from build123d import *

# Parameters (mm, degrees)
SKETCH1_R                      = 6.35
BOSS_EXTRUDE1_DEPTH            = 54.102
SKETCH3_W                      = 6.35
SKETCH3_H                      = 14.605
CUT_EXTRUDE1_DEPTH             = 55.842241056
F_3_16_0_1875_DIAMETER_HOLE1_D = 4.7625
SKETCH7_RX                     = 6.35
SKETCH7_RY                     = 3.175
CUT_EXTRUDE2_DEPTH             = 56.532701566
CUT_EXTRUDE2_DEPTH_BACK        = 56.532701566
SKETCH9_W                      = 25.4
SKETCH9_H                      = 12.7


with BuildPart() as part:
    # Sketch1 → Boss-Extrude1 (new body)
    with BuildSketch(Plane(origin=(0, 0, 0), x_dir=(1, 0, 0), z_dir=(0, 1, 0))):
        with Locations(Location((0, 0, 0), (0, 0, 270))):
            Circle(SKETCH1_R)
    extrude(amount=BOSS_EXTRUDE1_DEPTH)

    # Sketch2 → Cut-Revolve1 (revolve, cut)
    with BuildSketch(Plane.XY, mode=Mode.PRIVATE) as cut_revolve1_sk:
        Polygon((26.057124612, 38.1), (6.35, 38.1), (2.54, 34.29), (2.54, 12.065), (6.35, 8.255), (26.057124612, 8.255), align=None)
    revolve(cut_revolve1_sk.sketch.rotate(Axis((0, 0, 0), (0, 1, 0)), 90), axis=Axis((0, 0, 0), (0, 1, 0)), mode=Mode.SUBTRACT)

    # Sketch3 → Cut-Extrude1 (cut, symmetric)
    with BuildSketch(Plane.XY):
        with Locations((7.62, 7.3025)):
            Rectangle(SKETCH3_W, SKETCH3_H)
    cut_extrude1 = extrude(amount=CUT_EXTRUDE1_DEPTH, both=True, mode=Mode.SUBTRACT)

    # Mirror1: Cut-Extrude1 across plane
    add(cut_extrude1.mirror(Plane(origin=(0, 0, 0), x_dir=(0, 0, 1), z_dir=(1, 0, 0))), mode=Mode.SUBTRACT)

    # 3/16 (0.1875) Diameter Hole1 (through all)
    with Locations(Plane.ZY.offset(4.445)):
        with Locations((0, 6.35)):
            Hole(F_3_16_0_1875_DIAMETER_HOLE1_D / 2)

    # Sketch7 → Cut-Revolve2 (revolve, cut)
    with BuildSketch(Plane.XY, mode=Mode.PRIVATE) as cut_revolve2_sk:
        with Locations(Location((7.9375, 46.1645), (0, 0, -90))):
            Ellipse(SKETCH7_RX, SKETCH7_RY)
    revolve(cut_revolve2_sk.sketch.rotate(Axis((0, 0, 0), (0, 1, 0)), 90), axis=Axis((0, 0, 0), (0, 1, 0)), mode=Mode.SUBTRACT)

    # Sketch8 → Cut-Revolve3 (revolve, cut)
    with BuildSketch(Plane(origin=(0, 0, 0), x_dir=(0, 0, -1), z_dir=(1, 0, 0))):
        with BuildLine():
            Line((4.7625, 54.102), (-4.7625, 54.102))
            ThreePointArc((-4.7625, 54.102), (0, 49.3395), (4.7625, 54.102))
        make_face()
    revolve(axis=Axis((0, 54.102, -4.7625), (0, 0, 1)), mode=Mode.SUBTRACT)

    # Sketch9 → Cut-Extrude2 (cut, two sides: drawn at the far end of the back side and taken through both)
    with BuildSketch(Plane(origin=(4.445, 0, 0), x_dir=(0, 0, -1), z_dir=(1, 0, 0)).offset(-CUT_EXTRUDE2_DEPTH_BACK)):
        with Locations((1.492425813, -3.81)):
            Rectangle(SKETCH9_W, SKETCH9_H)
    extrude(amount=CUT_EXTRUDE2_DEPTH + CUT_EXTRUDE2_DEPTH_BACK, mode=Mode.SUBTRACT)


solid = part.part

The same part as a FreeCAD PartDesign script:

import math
import FreeCAD as App
import Part
import Sketcher

V = App.Vector
Q = App.Units.Quantity


def add_polygon(sketch, points):
    """Adds a closed chain of lines whose ends are joined by coincident constraints."""
    first, n = sketch.GeometryCount, len(points)
    for a, b in zip(points, points[1:] + points[:1]):
        sketch.addGeometry(Part.LineSegment(App.Vector(*a, 0), App.Vector(*b, 0)), False)
    for i in range(n):
        sketch.addConstraint(Sketcher.Constraint("Coincident", first + i, 2, first + (i + 1) % n, 1))

doc = App.newDocument("Part")
body = doc.addObject("PartDesign::Body", "Body")

sketch1 = body.newObject("Sketcher::SketchObject", "Sketch")
sketch1.AttachmentSupport = (doc.getObject("XZ_Plane"), [""])
sketch1.MapMode = "FlatFace"
sketch1.addGeometry(Part.Circle(V(0, 0, 0), V(0, 0, 1), 6), False)
sketch1.addConstraint(Sketcher.Constraint("Coincident", 0, 3, -1, 1))
sketch1.addConstraint(Sketcher.Constraint("Diameter", 0, Q("0.5 in")))
pad1 = body.newObject("PartDesign::Pad", "Pad")
pad1.Profile = sketch1
pad1.Length = Q("2.13 in")
pad1.Reversed = True

sketch2 = body.newObject("Sketcher::SketchObject", "Sketch001")
sketch2.AttachmentSupport = (doc.getObject("XY_Plane"), [""])
sketch2.MapMode = "FlatFace"
add_polygon(sketch2, [(26, 38), (6, 38), (3, 34), (3, 12), (6, 8), (26, 8)])
sketch2.addConstraint(Sketcher.Constraint("Horizontal", 0))
sketch2.addConstraint(Sketcher.Constraint("Vertical", 2))
sketch2.addConstraint(Sketcher.Constraint("Horizontal", 4))
sketch2.addConstraint(Sketcher.Constraint("Vertical", 5))
sketch2.addConstraint(Sketcher.Constraint("Perpendicular", 1, 3))
sketch2.addConstraint(Sketcher.Constraint("Vertical", 0, 2, 3, 2))
sketch2.addConstraint(Sketcher.Constraint("Equal", 1, 3))
sketch2.addConstraint(Sketcher.Constraint("DistanceY", -1, 1, 0, 2, Q("1.5 in")))
sketch2.addConstraint(Sketcher.Constraint("DistanceX", -1, 1, 1, 2, Q("0.1 in")))
sketch2.addConstraint(Sketcher.Constraint("DistanceY", 2, 2, 2, 1, Q("0.875 in")))
sketch2.addConstraint(Sketcher.Constraint("DistanceY", 5, 1, 5, 2, Q("1.175 in")))
sketch2.addConstraint(Sketcher.Constraint("DistanceX", 0, 2, 0, 1, Q("19.707125 mm")))
groove = body.newObject("PartDesign::Groove", "Groove")
groove.Profile = sketch2
groove.ReferenceAxis = (sketch2, ["V_Axis"])
groove.Angle = 360

sketch3 = body.newObject("Sketcher::SketchObject", "Sketch002")
sketch3.AttachmentSupport = (doc.getObject("XY_Plane"), [""])
sketch3.MapMode = "FlatFace"
add_polygon(sketch3, [(4, 15), (4, 0), (11, 0), (11, 15)])
sketch3.addConstraint(Sketcher.Constraint("Vertical", 0))
sketch3.addConstraint(Sketcher.Constraint("Horizontal", 1))
sketch3.addConstraint(Sketcher.Constraint("Vertical", 2))
sketch3.addConstraint(Sketcher.Constraint("Horizontal", 3))
sketch3.addConstraint(Sketcher.Constraint("PointOnObject", 0, 2, -1))
sketch3.addConstraint(Sketcher.Constraint("DistanceX", 1, 1, 1, 2, Q("0.25 in")))
sketch3.addConstraint(Sketcher.Constraint("DistanceY", 0, 2, 0, 1, Q("0.575 in")))
sketch3.addConstraint(Sketcher.Constraint("DistanceX", -1, 1, 0, 2, Q("0.175 in")))
pocket1 = body.newObject("PartDesign::Pocket", "Pocket")
pocket1.Profile = sketch3
pocket1.Length = 111.684482
pocket1.Midplane = True
doc.recompute()

mirrored = body.newObject("PartDesign::Mirrored", "Mirrored")
mirrored.Originals = [pocket1]
mirrored.MirrorPlane = (doc.getObject("YZ_Plane"), [""])
body.Tip = mirrored

sketch4 = body.newObject("Sketcher::SketchObject", "Sketch003")
sketch4.AttachmentSupport = (doc.getObject("YZ_Plane"), [""])
sketch4.MapMode = "FlatFace"
sketch4.AttachmentOffset = App.Placement(V(0, 0, -0.175 * 25.4), App.Rotation())
sketch4.addGeometry(Part.Circle(V(6.3, 0, 0), V(0, 0, 1), 2.4), False)
sketch4.addConstraint(Sketcher.Constraint("PointOnObject", 0, 3, -1))
sketch4.addConstraint(Sketcher.Constraint("Diameter", 0, Q("0.1875 in")))
sketch4.addConstraint(Sketcher.Constraint("DistanceX", -1, 1, 0, 3, Q("0.25 in")))
doc.recompute()
hole = body.newObject("PartDesign::Hole", "Hole")
hole.Profile = sketch4
hole.ThreadType = "None"
hole.Diameter = Q("0.1875 in")
hole.DepthType = "ThroughAll"
hole.Reversed = True

sketch5 = body.newObject("Sketcher::SketchObject", "Sketch004")
sketch5.AttachmentSupport = (doc.getObject("XY_Plane"), [""])
sketch5.MapMode = "FlatFace"
sketch5.addGeometry(Part.Ellipse(V(7.9375, 39.8145, 0), V(11.1125, 46.1645, 0), V(7.9375, 46.1645, 0)), False)
sketch5.addConstraint(Sketcher.Constraint("Block", 0))
groove2 = body.newObject("PartDesign::Groove", "Groove001")
groove2.Profile = sketch5
groove2.ReferenceAxis = (sketch5, ["V_Axis"])
groove2.Angle = 360

sketch6 = body.newObject("Sketcher::SketchObject", "Sketch005")
sketch6.AttachmentSupport = (doc.getObject("YZ_Plane"), [""])
sketch6.MapMode = "FlatFace"
sketch6.addGeometry(Part.LineSegment(V(54.1, -4.8, 0), V(54.1, 4.8, 0)), False)
sketch6.addGeometry(Part.ArcOfCircle(Part.Circle(V(54.1, 0, 0), V(0, 0, 1), 4.8), math.radians(90), math.radians(270)), False)
sketch6.addGeometry(Part.LineSegment(V(54.1, -4.8, 0), V(54.1, 4.8, 0)), True)
sketch6.addConstraint(Sketcher.Constraint("Coincident", 0, 1, 1, 2))
sketch6.addConstraint(Sketcher.Constraint("Coincident", 1, 1, 0, 2))
sketch6.addConstraint(Sketcher.Constraint("Vertical", 0))
sketch6.addConstraint(Sketcher.Constraint("Vertical", 2))
sketch6.addConstraint(Sketcher.Constraint("Coincident", 2, 1, 0, 1))
sketch6.addConstraint(Sketcher.Constraint("PointOnObject", 1, 3, -1))
sketch6.addConstraint(Sketcher.Constraint("Vertical", 1, 3, 0, 1))
sketch6.addConstraint(Sketcher.Constraint("Equal", 0, 2))
sketch6.addConstraint(Sketcher.Constraint("Radius", 1, Q("0.1875 in")))
sketch6.addConstraint(Sketcher.Constraint("DistanceX", -1, 1, 1, 3, Q("2.13 in")))
groove3 = body.newObject("PartDesign::Groove", "Groove002")
groove3.Profile = sketch6
groove3.ReferenceAxis = (sketch6, ["Axis0"])
groove3.Angle = 360

sketch7 = body.newObject("Sketcher::SketchObject", "Sketch006")
sketch7.AttachmentSupport = (doc.getObject("YZ_Plane"), [""])
sketch7.MapMode = "FlatFace"
sketch7.AttachmentOffset = App.Placement(V(0, 0, 0.175 * 25.4), App.Rotation())
add_polygon(sketch7, [(3, 11), (-10, 11), (-10, -14), (3, -14)])
sketch7.addConstraint(Sketcher.Constraint("Horizontal", 0))
sketch7.addConstraint(Sketcher.Constraint("Vertical", 1))
sketch7.addConstraint(Sketcher.Constraint("Horizontal", 2))
sketch7.addConstraint(Sketcher.Constraint("Vertical", 3))
sketch7.addConstraint(Sketcher.Constraint("DistanceY", 1, 2, 1, 1, Q("1 in")))
sketch7.addConstraint(Sketcher.Constraint("DistanceX", 0, 2, 0, 1, Q("0.5 in")))
sketch7.addConstraint(Sketcher.Constraint("DistanceX", 0, 2, -1, 1, Q("0.4 in")))
sketch7.addConstraint(Sketcher.Constraint("DistanceY", -1, 1, 0, 2, Q("11.207574 mm")))
pocket2 = body.newObject("PartDesign::Pocket", "Pocket001")
pocket2.Profile = sketch7
pocket2.Type = "ThroughAll"
pocket2.Midplane = True

doc.recompute()
